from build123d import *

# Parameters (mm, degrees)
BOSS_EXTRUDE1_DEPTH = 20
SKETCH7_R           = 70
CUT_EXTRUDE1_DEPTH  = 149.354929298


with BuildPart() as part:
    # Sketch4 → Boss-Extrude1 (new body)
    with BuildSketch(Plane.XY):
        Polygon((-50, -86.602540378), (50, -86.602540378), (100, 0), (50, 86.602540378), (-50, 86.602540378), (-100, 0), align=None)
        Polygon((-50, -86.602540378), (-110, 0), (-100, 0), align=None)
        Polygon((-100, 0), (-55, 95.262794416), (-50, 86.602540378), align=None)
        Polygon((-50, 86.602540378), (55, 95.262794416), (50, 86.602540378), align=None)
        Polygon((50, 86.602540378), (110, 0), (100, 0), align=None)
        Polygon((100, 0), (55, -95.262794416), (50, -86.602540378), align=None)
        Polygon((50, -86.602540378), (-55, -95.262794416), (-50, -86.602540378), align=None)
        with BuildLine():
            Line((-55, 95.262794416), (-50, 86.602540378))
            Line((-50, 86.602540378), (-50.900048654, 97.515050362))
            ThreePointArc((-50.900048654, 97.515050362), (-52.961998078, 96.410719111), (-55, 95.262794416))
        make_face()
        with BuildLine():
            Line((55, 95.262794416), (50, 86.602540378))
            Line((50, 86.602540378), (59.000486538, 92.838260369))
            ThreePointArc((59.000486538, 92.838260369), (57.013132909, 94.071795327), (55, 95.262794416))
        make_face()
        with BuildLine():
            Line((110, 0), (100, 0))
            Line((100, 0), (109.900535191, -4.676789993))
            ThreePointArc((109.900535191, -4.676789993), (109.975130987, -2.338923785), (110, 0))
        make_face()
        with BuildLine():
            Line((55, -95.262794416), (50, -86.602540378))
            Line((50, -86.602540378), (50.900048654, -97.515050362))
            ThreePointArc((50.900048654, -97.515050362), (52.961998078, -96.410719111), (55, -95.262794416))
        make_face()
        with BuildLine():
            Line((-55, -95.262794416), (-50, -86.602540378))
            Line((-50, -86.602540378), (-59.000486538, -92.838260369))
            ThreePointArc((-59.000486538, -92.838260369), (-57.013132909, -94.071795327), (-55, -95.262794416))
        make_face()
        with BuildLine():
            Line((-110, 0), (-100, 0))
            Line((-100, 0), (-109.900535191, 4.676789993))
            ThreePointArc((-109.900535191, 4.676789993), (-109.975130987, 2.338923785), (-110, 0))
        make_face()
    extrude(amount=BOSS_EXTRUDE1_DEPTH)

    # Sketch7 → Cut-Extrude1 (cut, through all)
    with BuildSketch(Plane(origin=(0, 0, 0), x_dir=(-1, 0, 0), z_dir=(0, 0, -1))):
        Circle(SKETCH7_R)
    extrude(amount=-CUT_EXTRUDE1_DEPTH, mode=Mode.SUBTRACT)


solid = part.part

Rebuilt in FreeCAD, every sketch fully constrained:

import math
import FreeCAD as App
import Part
import Sketcher

doc = App.newDocument("Part")
params = doc.addObject("Spreadsheet::Sheet", "Params")
for row, (alias, value) in enumerate([
    ("pad1_length", "20 mm"),
    ("sketch2_diameter", "140 mm"),
], start=1):
    params.set(f"A{row}", alias)
    params.set(f"B{row}", "=" + value)
    params.setAlias(f"B{row}", alias)

body = doc.addObject("PartDesign::Body", "Body")

sketch1 = body.newObject("Sketcher::SketchObject", "Sketch")
sketch1.AttachmentSupport = (doc.getObject("XY_Plane"), [""])
sketch1.MapMode = "FlatFace"
sketch1.addGeometry([
    Part.LineSegment(App.Vector(55, -95.3, 0), App.Vector(100, 0, 0)),
    Part.LineSegment(App.Vector(100, 0, 0), App.Vector(109.9, -4.7, 0)),
    Part.ArcOfCircle(Part.Circle(App.Vector(0, 0, 0), App.Vector(0, 0, 1), 110), math.radians(-2.44), math.radians(0)),
    Part.LineSegment(App.Vector(110, 0, 0), App.Vector(50, 86.6, 0)),
    Part.LineSegment(App.Vector(50, 86.6, 0), App.Vector(59, 92.8, 0)),
    Part.ArcOfCircle(Part.Circle(App.Vector(0, 0, 0), App.Vector(0, 0, 1), 110), math.radians(57.56), math.radians(60)),
    Part.LineSegment(App.Vector(55, 95.3, 0), App.Vector(-50, 86.6, 0)),
    Part.LineSegment(App.Vector(-50, 86.6, 0), App.Vector(-50.9, 97.5, 0)),
    Part.ArcOfCircle(Part.Circle(App.Vector(0, 0, 0), App.Vector(0, 0, 1), 110), math.radians(117.56), math.radians(120)),
    Part.LineSegment(App.Vector(-55, 95.3, 0), App.Vector(-100, 0, 0)),
    Part.LineSegment(App.Vector(-100, 0, 0), App.Vector(-109.9, 4.7, 0)),
    Part.ArcOfCircle(Part.Circle(App.Vector(0, 0, 0), App.Vector(0, 0, 1), 110), math.radians(177.56), math.radians(180)),
    Part.LineSegment(App.Vector(-110, 0, 0), App.Vector(-50, -86.6, 0)),
    Part.LineSegment(App.Vector(-50, -86.6, 0), App.Vector(-59, -92.8, 0)),
    Part.ArcOfCircle(Part.Circle(App.Vector(0, 0, 0), App.Vector(0, 0, 1), 110), math.radians(-122.44), math.radians(-120)),
    Part.LineSegment(App.Vector(-55, -95.3, 0), App.Vector(50, -86.6, 0)),
    Part.LineSegment(App.Vector(50, -86.6, 0), App.Vector(50.9, -97.5, 0)),
    Part.ArcOfCircle(Part.Circle(App.Vector(0, 0, 0), App.Vector(0, 0, 1), 110), math.radians(-62.44), math.radians(-60)),
], False)
sketch1.addConstraint([
    Sketcher.Constraint("Coincident", 0, 2, 1, 1),
    Sketcher.Constraint("Coincident", 1, 2, 2, 1),
    Sketcher.Constraint("Coincident", 2, 2, 3, 1),
    Sketcher.Constraint("Coincident", 3, 2, 4, 1),
    Sketcher.Constraint("Coincident", 4, 2, 5, 1),
    Sketcher.Constraint("Coincident", 5, 2, 6, 1),
    Sketcher.Constraint("Coincident", 6, 2, 7, 1),
    Sketcher.Constraint("Coincident", 7, 2, 8, 1),
    Sketcher.Constraint("Coincident", 8, 2, 9, 1),
    Sketcher.Constraint("Coincident", 9, 2, 10, 1),
    Sketcher.Constraint("Coincident", 10, 2, 11, 1),
    Sketcher.Constraint("Coincident", 11, 2, 12, 1),
    Sketcher.Constraint("Coincident", 12, 2, 13, 1),
    Sketcher.Constraint("Coincident", 13, 2, 14, 1),
    Sketcher.Constraint("Coincident", 14, 2, 15, 1),
    Sketcher.Constraint("Coincident", 15, 2, 16, 1),
    Sketcher.Constraint("Coincident", 16, 2, 17, 1),
    Sketcher.Constraint("Coincident", 17, 2, 0, 1),
    Sketcher.Constraint("Coincident", 2, 3, -1, 1),
    Sketcher.Constraint("Coincident", 5, 3, -1, 1),
    Sketcher.Constraint("Coincident", 8, 3, -1, 1),
    Sketcher.Constraint("Coincident", 11, 3, -1, 1),
    Sketcher.Constraint("Coincident", 14, 3, -1, 1),
    Sketcher.Constraint("Coincident", 17, 3, -1, 1),
    Sketcher.Constraint("Equal", 2, 5),
    Sketcher.Constraint("Equal", 5, 11),
    Sketcher.Constraint("Equal", 11, 14),
    Sketcher.Constraint("Equal", 8, 17),
    Sketcher.Constraint("Symmetric", 0, 2, 9, 2, -1, 1),
    Sketcher.Constraint("Symmetric", 3, 2, 12, 2, -1, 1),
    Sketcher.Constraint("Symmetric", 6, 2, 15, 2, -1, 1),
    Sketcher.Constraint("Symmetric", 3, 2, 6, 2, -2),
    Sketcher.Constraint("Symmetric", 5, 2, 8, 2, -2),
    Sketcher.Constraint("PointOnObject", 0, 2, -1),
    Sketcher.Constraint("PointOnObject", 2, 2, -1),
    Sketcher.Constraint("PointOnObject", 11, 2, -1),
    Sketcher.Constraint("Perpendicular", 0, 1),
    Sketcher.Constraint("Perpendicular", 3, 4),
    Sketcher.Constraint("Perpendicular", 6, 7),
    Sketcher.Constraint("Perpendicular", 1, 9),
    Sketcher.Constraint("Perpendicular", 9, 10),
    Sketcher.Constraint("Perpendicular", 12, 13),
    Sketcher.Constraint("Perpendicular", 7, 15),
    Sketcher.Constraint("Perpendicular", 15, 16),
    Sketcher.Constraint("Equal", 0, 3),
    Sketcher.Constraint("Equal", 1, 4),
    Sketcher.Constraint("Equal", 3, 6),
    Sketcher.Constraint("DistanceX", -1, 1, 0, 2, 100.0),
    Sketcher.Constraint("DistanceX", -1, 1, 2, 2, 110.0),
])
pad1 = body.newObject("PartDesign::Pad", "Pad")
pad1.Profile = sketch1
pad1.setExpression("Length", "Params.pad1_length")

sketch2 = body.newObject("Sketcher::SketchObject", "Sketch001")
sketch2.AttachmentSupport = (doc.getObject("XY_Plane"), [""])
sketch2.MapMode = "FlatFace"
sketch2.addGeometry(Part.Circle(App.Vector(0, 0, 0), App.Vector(0, 0, 1), 70), False)
sketch2.addConstraint([
    Sketcher.Constraint("Coincident", 0, 3, -1, 1),
    Sketcher.Constraint("Diameter", 0, 140.0),
])
sketch2.setExpression("Constraints[1]", "Params.sketch2_diameter")
pocket1 = body.newObject("PartDesign::Pocket", "Pocket")
pocket1.Profile = sketch2
pocket1.Type = "ThroughAll"
pocket1.Reversed = True

doc.recompute()
